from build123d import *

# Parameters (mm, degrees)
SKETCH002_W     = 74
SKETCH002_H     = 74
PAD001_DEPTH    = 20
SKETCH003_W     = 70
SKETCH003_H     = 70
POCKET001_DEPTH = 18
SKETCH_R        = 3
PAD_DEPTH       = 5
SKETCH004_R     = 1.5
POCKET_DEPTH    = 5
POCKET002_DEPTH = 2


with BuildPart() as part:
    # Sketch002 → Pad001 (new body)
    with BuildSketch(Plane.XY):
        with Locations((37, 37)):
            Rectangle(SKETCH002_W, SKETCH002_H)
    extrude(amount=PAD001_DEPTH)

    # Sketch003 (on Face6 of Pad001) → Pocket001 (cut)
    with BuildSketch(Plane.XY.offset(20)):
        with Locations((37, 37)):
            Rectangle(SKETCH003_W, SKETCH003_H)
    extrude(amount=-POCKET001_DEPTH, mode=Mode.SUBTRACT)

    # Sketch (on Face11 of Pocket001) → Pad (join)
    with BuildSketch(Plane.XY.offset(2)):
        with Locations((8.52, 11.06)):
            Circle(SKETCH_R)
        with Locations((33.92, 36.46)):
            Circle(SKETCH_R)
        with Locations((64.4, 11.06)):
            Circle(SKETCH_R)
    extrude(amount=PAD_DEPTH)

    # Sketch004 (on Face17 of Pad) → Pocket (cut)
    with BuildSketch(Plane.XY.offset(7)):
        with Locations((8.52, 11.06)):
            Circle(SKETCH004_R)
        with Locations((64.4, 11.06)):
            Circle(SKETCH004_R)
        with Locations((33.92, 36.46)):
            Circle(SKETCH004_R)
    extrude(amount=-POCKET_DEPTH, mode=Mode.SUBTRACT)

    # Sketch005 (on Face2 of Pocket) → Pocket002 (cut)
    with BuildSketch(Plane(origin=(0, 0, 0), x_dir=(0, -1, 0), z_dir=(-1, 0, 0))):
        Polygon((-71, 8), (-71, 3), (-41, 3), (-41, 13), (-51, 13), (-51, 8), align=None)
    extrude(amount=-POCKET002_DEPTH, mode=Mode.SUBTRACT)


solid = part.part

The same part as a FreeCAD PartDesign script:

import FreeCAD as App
import Part
import Sketcher

V = App.Vector
Q = App.Units.Quantity

doc = App.newDocument("Part")
params = doc.addObject("Spreadsheet::Sheet", "Params")
for row, (alias, value) in enumerate([
    ("sketch1_width", "74 mm"),
    ("pad1_length", "20 mm"),
    ("sketch2_width", "70 mm"),
    ("pocket1_length", "18 mm"),
    ("sketch3_diameter", "6 mm"),
    ("pad2_length", "5 mm"),
    ("sketch4_diameter", "3 mm"),
    ("pocket2_length", "5 mm"),
    ("sketch5_width", "30 mm"),
    ("sketch5_width2", "10 mm"),
    ("pocket3_length", "2 mm"),
], start=1):
    params.set(f"A{row}", alias)
    params.set(f"B{row}", "=" + value)
    params.setAlias(f"B{row}", alias)

body = doc.addObject("PartDesign::Body", "Body")

# Sketch on XY plane
sketch1 = body.newObject("Sketcher::SketchObject", "Sketch")
sketch1.AttachmentSupport = (doc.getObject("XY_Plane"), [""])
sketch1.MapMode = "FlatFace"
sketch1.addGeometry(Part.LineSegment(V(0, 74, 0), V(0, 0, 0)), False)
sketch1.addGeometry(Part.LineSegment(V(0, 0, 0), V(74, 0, 0)), False)
sketch1.addGeometry(Part.LineSegment(V(74, 0, 0), V(74, 74, 0)), False)
sketch1.addGeometry(Part.LineSegment(V(74, 74, 0), V(0, 74, 0)), False)
sketch1.addConstraint(Sketcher.Constraint("Coincident", 0, 2, 1, 1))
sketch1.addConstraint(Sketcher.Constraint("Coincident", 1, 2, 2, 1))
sketch1.addConstraint(Sketcher.Constraint("Coincident", 2, 2, 3, 1))
sketch1.addConstraint(Sketcher.Constraint("Coincident", 3, 2, 0, 1))
sketch1.addConstraint(Sketcher.Constraint("Vertical", 0))
sketch1.addConstraint(Sketcher.Constraint("Horizontal", 1))
sketch1.addConstraint(Sketcher.Constraint("Vertical", 2))
sketch1.addConstraint(Sketcher.Constraint("Horizontal", 3))
sketch1.addConstraint(Sketcher.Constraint("Coincident", 0, 2, -1, 1))
sketch1.addConstraint(Sketcher.Constraint("Equal", 3, 0))
sketch1.addConstraint(Sketcher.Constraint("DistanceX", 1, 1, 1, 2, Q("74 mm")))
sketch1.setExpression("Constraints[10]", "Params.sketch1_width")
pad1 = body.newObject("PartDesign::Pad", "Pad")
pad1.Profile = sketch1
pad1.setExpression("Length", "Params.pad1_length")

# Sketch on XY plane
sketch2 = body.newObject("Sketcher::SketchObject", "Sketch001")
sketch2.AttachmentSupport = (doc.getObject("XY_Plane"), [""])
sketch2.MapMode = "FlatFace"
sketch2.AttachmentOffset = App.Placement(V(0, 0, 20), App.Rotation())
sketch2.addGeometry(Part.LineSegment(V(2, 72, 0), V(2, 2, 0)), False)
sketch2.addGeometry(Part.LineSegment(V(2, 2, 0), V(72, 2, 0)), False)
sketch2.addGeometry(Part.LineSegment(V(72, 2, 0), V(72, 72, 0)), False)
sketch2.addGeometry(Part.LineSegment(V(72, 72, 0), V(2, 72, 0)), False)
sketch2.addConstraint(Sketcher.Constraint("Coincident", 0, 2, 1, 1))
sketch2.addConstraint(Sketcher.Constraint("Coincident", 1, 2, 2, 1))
sketch2.addConstraint(Sketcher.Constraint("Coincident", 2, 2, 3, 1))
sketch2.addConstraint(Sketcher.Constraint("Coincident", 3, 2, 0, 1))
sketch2.addConstraint(Sketcher.Constraint("Vertical", 0))
sketch2.addConstraint(Sketcher.Constraint("Horizontal", 1))
sketch2.addConstraint(Sketcher.Constraint("Vertical", 2))
sketch2.addConstraint(Sketcher.Constraint("Horizontal", 3))
sketch2.addConstraint(Sketcher.Constraint("Equal", 3, 0))
sketch2.addConstraint(Sketcher.Constraint("DistanceX", 1, 1, 1, 2, Q("70 mm")))
sketch2.addConstraint(Sketcher.Constraint("DistanceX", -1, 1, 0, 2, Q("2 mm")))
sketch2.addConstraint(Sketcher.Constraint("DistanceY", -1, 1, 0, 2, Q("2 mm")))
sketch2.setExpression("Constraints[9]", "Params.sketch2_width")
pocket1 = body.newObject("PartDesign::Pocket", "Pocket")
pocket1.Profile = sketch2
pocket1.setExpression("Length", "Params.pocket1_length")

# Sketch on XY plane
sketch3 = body.newObject("Sketcher::SketchObject", "Sketch002")
sketch3.AttachmentSupport = (doc.getObject("XY_Plane"), [""])
sketch3.MapMode = "FlatFace"
sketch3.AttachmentOffset = App.Placement(V(0, 0, 2), App.Rotation())
sketch3.addGeometry(Part.Circle(V(8.52, 11.06, 0), V(0, 0, 1), 3), False)
sketch3.addGeometry(Part.Circle(V(33.92, 36.46, 0), V(0, 0, 1), 3), False)
sketch3.addGeometry(Part.Circle(V(64.4, 11.06, 0), V(0, 0, 1), 3), False)
sketch3.addConstraint(Sketcher.Constraint("Equal", 0, 1))
sketch3.addConstraint(Sketcher.Constraint("Equal", 1, 2))
sketch3.addConstraint(Sketcher.Constraint("Horizontal", 0, 3, 2, 3))
sketch3.addConstraint(Sketcher.Constraint("Diameter", 0, Q("6 mm")))
sketch3.addConstraint(Sketcher.Constraint("DistanceX", -1, 1, 2, 3, Q("64.4 mm")))
sketch3.addConstraint(Sketcher.Constraint("DistanceX", 0, 3, 1, 3, Q("25.4 mm")))
sketch3.addConstraint(Sketcher.Constraint("DistanceY", 0, 3, 1, 3, Q("25.4 mm")))
sketch3.addConstraint(Sketcher.Constraint("DistanceX", -1, 1, 0, 3, Q("8.52 mm")))
sketch3.addConstraint(Sketcher.Constraint("DistanceY", -1, 1, 0, 3, Q("11.06 mm")))
sketch3.setExpression("Constraints[3]", "Params.sketch3_diameter")
pad2 = body.newObject("PartDesign::Pad", "Pad001")
pad2.Profile = sketch3
pad2.setExpression("Length", "Params.pad2_length")

# Sketch on XY plane
sketch4 = body.newObject("Sketcher::SketchObject", "Sketch003")
sketch4.AttachmentSupport = (doc.getObject("XY_Plane"), [""])
sketch4.MapMode = "FlatFace"
sketch4.AttachmentOffset = App.Placement(V(0, 0, 7), App.Rotation())
sketch4.addGeometry(Part.Circle(V(8.52, 11.06, 0), V(0, 0, 1), 1.5), False)
sketch4.addGeometry(Part.Circle(V(64.4, 11.06, 0), V(0, 0, 1), 1.5), False)
sketch4.addGeometry(Part.Circle(V(33.92, 36.46, 0), V(0, 0, 1), 1.5), False)
sketch4.addConstraint(Sketcher.Constraint("Equal", 0, 1))
sketch4.addConstraint(Sketcher.Constraint("Equal", 1, 2))
sketch4.addConstraint(Sketcher.Constraint("Horizontal", 0, 3, 1, 3))
sketch4.addConstraint(Sketcher.Constraint("Diameter", 0, Q("3 mm")))
sketch4.addConstraint(Sketcher.Constraint("DistanceX", -1, 1, 1, 3, Q("64.4 mm")))
sketch4.addConstraint(Sketcher.Constraint("DistanceX", 0, 3, 2, 3, Q("25.4 mm")))
sketch4.addConstraint(Sketcher.Constraint("DistanceY", 0, 3, 2, 3, Q("25.4 mm")))
sketch4.addConstraint(Sketcher.Constraint("DistanceX", -1, 1, 0, 3, Q("8.52 mm")))
sketch4.addConstraint(Sketcher.Constraint("DistanceY", -1, 1, 0, 3, Q("11.06 mm")))
sketch4.setExpression("Constraints[3]", "Params.sketch4_diameter")
pocket2 = body.newObject("PartDesign::Pocket", "Pocket001")
pocket2.Profile = sketch4
pocket2.setExpression("Length", "Params.pocket2_length")

# Sketch on YZ plane
sketch5 = body.newObject("Sketcher::SketchObject", "Sketch004")
sketch5.AttachmentSupport = (doc.getObject("YZ_Plane"), [""])
sketch5.MapMode = "FlatFace"
sketch5.addGeometry(Part.LineSegment(V(71, 8, 0), V(71, 3, 0)), False)
sketch5.addGeometry(Part.LineSegment(V(71, 3, 0), V(41, 3, 0)), False)
sketch5.addGeometry(Part.LineSegment(V(41, 3, 0), V(41, 13, 0)), False)
sketch5.addGeometry(Part.LineSegment(V(41, 13, 0), V(51, 13, 0)), False)
sketch5.addGeometry(Part.LineSegment(V(51, 13, 0), V(51, 8, 0)), False)
sketch5.addGeometry(Part.LineSegment(V(51, 8, 0), V(71, 8, 0)), False)
sketch5.addConstraint(Sketcher.Constraint("Coincident", 0, 2, 1, 1))
sketch5.addConstraint(Sketcher.Constraint("Coincident", 1, 2, 2, 1))
sketch5.addConstraint(Sketcher.Constraint("Coincident", 2, 2, 3, 1))
sketch5.addConstraint(Sketcher.Constraint("Coincident", 3, 2, 4, 1))
sketch5.addConstraint(Sketcher.Constraint("Coincident", 4, 2, 5, 1))
sketch5.addConstraint(Sketcher.Constraint("Coincident", 5, 2, 0, 1))
sketch5.addConstraint(Sketcher.Constraint("Vertical", 0))
sketch5.addConstraint(Sketcher.Constraint("Horizontal", 1))
sketch5.addConstraint(Sketcher.Constraint("Vertical", 2))
sketch5.addConstraint(Sketcher.Constraint("Horizontal", 3))
sketch5.addConstraint(Sketcher.Constraint("Vertical", 4))
sketch5.addConstraint(Sketcher.Constraint("Horizontal", 5))
sketch5.addConstraint(Sketcher.Constraint("Equal", 3, 2))
sketch5.addConstraint(Sketcher.Constraint("Equal", 0, 4))
sketch5.addConstraint(Sketcher.Constraint("DistanceX", 1, 2, 1, 1, Q("30 mm")))
sketch5.addConstraint(Sketcher.Constraint("DistanceX", 3, 1, 3, 2, Q("10 mm")))
sketch5.addConstraint(Sketcher.Constraint("DistanceX", -1, 1, 0, 2, Q("71 mm")))
sketch5.addConstraint(Sketcher.Constraint("DistanceY", -1, 1, 0, 2, Q("3 mm")))
sketch5.setExpression("Constraints[14]", "Params.sketch5_width")
sketch5.setExpression("Constraints[15]", "Params.sketch5_width2")
pocket3 = body.newObject("PartDesign::Pocket", "Pocket002")
pocket3.Profile = sketch5
pocket3.setExpression("Length", "Params.pocket3_length")
pocket3.Reversed = True

doc.recompute()
